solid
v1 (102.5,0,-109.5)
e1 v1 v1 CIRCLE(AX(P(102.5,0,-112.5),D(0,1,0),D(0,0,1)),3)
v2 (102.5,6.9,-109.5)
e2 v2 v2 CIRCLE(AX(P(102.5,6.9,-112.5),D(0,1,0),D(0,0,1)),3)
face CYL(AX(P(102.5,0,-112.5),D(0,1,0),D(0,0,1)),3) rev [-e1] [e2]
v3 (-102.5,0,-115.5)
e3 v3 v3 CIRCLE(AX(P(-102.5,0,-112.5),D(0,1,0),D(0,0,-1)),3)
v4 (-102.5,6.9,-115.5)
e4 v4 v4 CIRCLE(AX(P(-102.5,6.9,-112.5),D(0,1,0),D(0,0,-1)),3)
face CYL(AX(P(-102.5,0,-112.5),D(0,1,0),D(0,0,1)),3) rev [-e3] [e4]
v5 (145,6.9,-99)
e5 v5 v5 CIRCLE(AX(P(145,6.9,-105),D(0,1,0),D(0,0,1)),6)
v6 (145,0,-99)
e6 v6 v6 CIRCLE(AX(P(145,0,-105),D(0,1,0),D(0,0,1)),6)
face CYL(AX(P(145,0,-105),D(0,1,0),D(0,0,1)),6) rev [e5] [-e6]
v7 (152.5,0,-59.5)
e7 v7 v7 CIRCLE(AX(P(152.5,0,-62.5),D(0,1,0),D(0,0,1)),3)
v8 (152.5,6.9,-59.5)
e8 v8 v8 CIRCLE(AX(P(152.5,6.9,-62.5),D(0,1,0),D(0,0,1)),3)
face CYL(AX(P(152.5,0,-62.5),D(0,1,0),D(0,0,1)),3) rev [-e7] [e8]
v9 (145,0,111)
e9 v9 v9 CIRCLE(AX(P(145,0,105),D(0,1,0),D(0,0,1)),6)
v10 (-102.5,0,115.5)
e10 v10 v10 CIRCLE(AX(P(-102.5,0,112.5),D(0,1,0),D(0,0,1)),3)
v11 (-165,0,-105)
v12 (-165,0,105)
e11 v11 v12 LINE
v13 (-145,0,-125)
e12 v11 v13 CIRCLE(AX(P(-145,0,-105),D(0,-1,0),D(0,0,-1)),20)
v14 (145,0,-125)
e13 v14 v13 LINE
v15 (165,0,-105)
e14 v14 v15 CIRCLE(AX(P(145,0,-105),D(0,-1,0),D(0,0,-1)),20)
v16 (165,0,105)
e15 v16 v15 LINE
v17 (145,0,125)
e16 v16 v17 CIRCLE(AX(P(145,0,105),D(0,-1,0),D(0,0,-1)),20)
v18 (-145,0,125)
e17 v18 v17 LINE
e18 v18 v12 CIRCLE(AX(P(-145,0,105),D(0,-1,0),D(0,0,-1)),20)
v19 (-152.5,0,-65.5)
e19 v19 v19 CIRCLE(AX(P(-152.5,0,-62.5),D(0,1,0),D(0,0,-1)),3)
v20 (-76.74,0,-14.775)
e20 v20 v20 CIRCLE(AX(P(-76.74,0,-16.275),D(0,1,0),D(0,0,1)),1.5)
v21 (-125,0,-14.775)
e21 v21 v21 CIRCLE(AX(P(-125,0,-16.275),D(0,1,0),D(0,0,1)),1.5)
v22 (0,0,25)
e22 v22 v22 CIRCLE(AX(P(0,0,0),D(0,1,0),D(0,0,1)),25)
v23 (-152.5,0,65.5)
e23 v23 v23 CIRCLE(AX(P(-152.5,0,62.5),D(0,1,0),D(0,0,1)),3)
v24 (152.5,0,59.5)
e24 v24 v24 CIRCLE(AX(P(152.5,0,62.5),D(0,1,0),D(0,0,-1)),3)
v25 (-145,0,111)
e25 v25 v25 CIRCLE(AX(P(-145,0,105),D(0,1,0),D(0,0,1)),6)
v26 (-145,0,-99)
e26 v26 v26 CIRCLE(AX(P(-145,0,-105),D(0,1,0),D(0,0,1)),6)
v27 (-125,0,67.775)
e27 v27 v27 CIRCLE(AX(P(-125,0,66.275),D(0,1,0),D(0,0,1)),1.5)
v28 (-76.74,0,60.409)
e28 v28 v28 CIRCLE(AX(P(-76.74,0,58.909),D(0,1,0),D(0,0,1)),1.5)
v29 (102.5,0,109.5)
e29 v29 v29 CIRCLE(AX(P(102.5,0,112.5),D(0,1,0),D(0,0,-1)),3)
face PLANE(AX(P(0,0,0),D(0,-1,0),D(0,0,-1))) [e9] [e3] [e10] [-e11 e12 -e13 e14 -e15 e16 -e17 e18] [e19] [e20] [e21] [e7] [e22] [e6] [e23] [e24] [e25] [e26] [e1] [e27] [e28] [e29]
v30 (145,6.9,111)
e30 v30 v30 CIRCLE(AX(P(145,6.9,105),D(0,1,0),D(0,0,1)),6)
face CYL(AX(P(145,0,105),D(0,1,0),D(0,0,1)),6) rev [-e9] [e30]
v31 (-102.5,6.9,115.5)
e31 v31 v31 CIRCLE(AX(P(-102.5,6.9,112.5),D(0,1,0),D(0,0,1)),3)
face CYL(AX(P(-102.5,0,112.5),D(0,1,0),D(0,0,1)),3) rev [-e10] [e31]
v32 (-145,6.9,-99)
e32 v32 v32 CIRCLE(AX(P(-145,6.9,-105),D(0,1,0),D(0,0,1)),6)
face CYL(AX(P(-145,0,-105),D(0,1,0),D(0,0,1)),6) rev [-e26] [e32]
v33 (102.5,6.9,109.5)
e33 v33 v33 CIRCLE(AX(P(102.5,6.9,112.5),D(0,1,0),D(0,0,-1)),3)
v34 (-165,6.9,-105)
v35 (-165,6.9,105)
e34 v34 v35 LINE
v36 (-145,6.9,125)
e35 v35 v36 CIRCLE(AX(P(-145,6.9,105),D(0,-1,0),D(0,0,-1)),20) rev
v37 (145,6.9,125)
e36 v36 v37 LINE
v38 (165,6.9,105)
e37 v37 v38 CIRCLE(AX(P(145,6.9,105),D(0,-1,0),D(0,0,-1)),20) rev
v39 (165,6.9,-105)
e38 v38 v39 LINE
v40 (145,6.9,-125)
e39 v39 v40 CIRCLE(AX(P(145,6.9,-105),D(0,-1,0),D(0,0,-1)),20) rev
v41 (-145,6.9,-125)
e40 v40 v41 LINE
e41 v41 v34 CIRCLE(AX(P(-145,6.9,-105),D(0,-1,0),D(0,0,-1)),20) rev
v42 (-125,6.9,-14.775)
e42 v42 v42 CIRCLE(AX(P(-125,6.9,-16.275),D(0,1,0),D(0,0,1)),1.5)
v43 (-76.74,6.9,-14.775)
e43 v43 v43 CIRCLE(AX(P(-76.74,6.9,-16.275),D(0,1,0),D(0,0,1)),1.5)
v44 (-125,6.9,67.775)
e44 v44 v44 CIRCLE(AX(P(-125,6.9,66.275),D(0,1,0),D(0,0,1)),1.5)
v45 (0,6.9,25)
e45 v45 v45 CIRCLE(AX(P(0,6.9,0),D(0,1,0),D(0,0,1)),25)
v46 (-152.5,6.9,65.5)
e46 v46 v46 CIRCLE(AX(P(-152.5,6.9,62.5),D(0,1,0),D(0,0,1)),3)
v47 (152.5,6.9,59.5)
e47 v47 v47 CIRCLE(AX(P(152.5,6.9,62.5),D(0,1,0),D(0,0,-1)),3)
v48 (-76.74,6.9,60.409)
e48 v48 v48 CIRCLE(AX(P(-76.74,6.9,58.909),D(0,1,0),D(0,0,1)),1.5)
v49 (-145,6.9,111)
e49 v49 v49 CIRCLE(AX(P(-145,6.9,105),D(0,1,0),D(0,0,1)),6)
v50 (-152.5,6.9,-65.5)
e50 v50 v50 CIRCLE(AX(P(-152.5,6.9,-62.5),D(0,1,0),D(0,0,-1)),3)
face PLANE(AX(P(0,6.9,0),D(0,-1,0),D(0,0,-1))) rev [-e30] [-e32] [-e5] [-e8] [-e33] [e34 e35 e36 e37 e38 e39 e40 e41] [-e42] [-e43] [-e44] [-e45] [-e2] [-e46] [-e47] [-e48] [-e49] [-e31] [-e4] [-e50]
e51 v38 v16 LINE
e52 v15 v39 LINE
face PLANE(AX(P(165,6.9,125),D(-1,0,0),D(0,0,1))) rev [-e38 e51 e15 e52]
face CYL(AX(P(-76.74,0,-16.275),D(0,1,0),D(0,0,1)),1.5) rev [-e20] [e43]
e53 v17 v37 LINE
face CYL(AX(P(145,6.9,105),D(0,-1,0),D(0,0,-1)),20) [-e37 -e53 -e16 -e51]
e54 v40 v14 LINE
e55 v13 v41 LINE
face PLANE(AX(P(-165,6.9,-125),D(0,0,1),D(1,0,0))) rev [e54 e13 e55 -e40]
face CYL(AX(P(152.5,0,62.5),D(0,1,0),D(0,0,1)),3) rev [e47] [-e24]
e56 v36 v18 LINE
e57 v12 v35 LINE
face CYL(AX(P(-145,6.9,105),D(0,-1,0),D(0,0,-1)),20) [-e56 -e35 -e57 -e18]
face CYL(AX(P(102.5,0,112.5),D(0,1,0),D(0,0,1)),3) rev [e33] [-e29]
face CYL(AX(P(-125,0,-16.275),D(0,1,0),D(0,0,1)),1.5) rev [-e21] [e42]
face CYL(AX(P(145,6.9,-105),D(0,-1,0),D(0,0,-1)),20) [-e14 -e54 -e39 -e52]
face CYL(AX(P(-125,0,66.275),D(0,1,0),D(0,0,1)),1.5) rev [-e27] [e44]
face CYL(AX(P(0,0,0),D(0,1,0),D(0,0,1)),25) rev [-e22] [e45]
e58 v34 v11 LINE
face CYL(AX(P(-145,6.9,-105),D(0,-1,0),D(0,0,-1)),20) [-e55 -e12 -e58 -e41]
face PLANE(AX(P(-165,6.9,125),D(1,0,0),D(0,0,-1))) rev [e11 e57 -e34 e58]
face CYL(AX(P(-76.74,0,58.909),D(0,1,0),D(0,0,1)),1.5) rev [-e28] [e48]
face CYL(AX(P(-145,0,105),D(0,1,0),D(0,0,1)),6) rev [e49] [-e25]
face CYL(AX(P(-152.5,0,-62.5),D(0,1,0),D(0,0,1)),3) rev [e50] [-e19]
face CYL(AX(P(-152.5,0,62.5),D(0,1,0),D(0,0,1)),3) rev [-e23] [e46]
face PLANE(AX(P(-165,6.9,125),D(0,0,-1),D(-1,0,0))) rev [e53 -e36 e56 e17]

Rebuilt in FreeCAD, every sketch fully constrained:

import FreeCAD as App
import Part
import Sketcher

V = App.Vector
Q = App.Units.Quantity


def edges_at(feature, points):
    """Names of the edges that pass closest to the given points."""
    edges = feature.Shape.Edges
    near = lambda p: min(range(len(edges)), key=lambda i: edges[i].distToShape(Part.Vertex(*p))[0])
    return sorted({f"Edge{near(p) + 1}" for p in points})

doc = App.newDocument("Part")
body = doc.addObject("PartDesign::Body", "Body")

sketch1 = body.newObject("Sketcher::SketchObject", "Sketch")
sketch1.AttachmentSupport = (doc.getObject("XZ_Plane"), [""])
sketch1.MapMode = "FlatFace"
sketch1.addGeometry(Part.LineSegment(V(-165, -125, 0), V(-165, 125, 0)), False)
sketch1.addGeometry(Part.LineSegment(V(-165, 125, 0), V(165, 125, 0)), False)
sketch1.addGeometry(Part.LineSegment(V(165, 125, 0), V(165, -125, 0)), False)
sketch1.addGeometry(Part.LineSegment(V(165, -125, 0), V(-165, -125, 0)), False)
sketch1.addConstraint(Sketcher.Constraint("Coincident", 0, 2, 1, 1))
sketch1.addConstraint(Sketcher.Constraint("Coincident", 1, 2, 2, 1))
sketch1.addConstraint(Sketcher.Constraint("Coincident", 2, 2, 3, 1))
sketch1.addConstraint(Sketcher.Constraint("Coincident", 3, 2, 0, 1))
sketch1.addConstraint(Sketcher.Constraint("Vertical", 0))
sketch1.addConstraint(Sketcher.Constraint("Horizontal", 1))
sketch1.addConstraint(Sketcher.Constraint("Vertical", 2))
sketch1.addConstraint(Sketcher.Constraint("Horizontal", 3))
sketch1.addConstraint(Sketcher.Constraint("Symmetric", 0, 2, 2, 2, -1, 1))
sketch1.addConstraint(Sketcher.Constraint("DistanceX", 1, 1, 1, 2, Q("330 mm")))
sketch1.addConstraint(Sketcher.Constraint("DistanceY", 0, 1, 0, 2, Q("250 mm")))
pad1 = body.newObject("PartDesign::Pad", "Pad")
pad1.Profile = sketch1
pad1.Length = 6.9
pad1.Reversed = True

sketch2 = body.newObject("Sketcher::SketchObject", "Sketch001")
sketch2.AttachmentSupport = (doc.getObject("XZ_Plane"), [""])
sketch2.MapMode = "FlatFace"
sketch2.AttachmentOffset = App.Placement(V(0, 0, -6.9), App.Rotation())
sketch2.addGeometry(Part.Circle(V(-145, -105, 0), V(0, 0, 1), 6), False)
sketch2.addGeometry(Part.Circle(V(145, -105, 0), V(0, 0, 1), 6), False)
sketch2.addGeometry(Part.Circle(V(145, 105, 0), V(0, 0, 1), 6), False)
sketch2.addGeometry(Part.Circle(V(-145, 105, 0), V(0, 0, 1), 6), False)
sketch2.addConstraint(Sketcher.Constraint("Equal", 0, 1))
sketch2.addConstraint(Sketcher.Constraint("Equal", 1, 2))
sketch2.addConstraint(Sketcher.Constraint("Equal", 2, 3))
sketch2.addConstraint(Sketcher.Constraint("Symmetric", 0, 3, 2, 3, -1, 1))
sketch2.addConstraint(Sketcher.Constraint("Symmetric", 1, 3, 3, 3, -1, 1))
sketch2.addConstraint(Sketcher.Constraint("Symmetric", 0, 3, 1, 3, -2))
sketch2.addConstraint(Sketcher.Constraint("Diameter", 0, Q("12 mm")))
sketch2.addConstraint(Sketcher.Constraint("DistanceX", 0, 3, -1, 1, Q("145 mm")))
sketch2.addConstraint(Sketcher.Constraint("DistanceY", 0, 3, -1, 1, Q("105 mm")))
pocket1 = body.newObject("PartDesign::Pocket", "Pocket")
pocket1.Profile = sketch2
pocket1.Type = "ThroughAll"
pocket1.Reversed = True

sketch3 = body.newObject("Sketcher::SketchObject", "Sketch002")
sketch3.AttachmentSupport = (doc.getObject("XZ_Plane"), [""])
sketch3.MapMode = "FlatFace"
sketch3.AttachmentOffset = App.Placement(V(0, 0, -6.9), App.Rotation())
sketch3.addGeometry(Part.Circle(V(0, 0, 0), V(0, 0, 1), 25), False)
sketch3.addConstraint(Sketcher.Constraint("Coincident", 0, 3, -1, 1))
sketch3.addConstraint(Sketcher.Constraint("Diameter", 0, Q("50 mm")))
pocket2 = body.newObject("PartDesign::Pocket", "Pocket001")
pocket2.Profile = sketch3
pocket2.Type = "ThroughAll"
pocket2.Reversed = True

sketch4 = body.newObject("Sketcher::SketchObject", "Sketch003")
sketch4.AttachmentSupport = (doc.getObject("XZ_Plane"), [""])
sketch4.MapMode = "FlatFace"
sketch4.AttachmentOffset = App.Placement(V(0, 0, -6.9), App.Rotation())
sketch4.addGeometry(Part.Circle(V(-152.5, 62.5, 0), V(0, 0, 1), 3), False)
sketch4.addGeometry(Part.Circle(V(-102.5, 112.5, 0), V(0, 0, 1), 3), False)
sketch4.addGeometry(Part.Circle(V(-102.5, -112.5, 0), V(0, 0, 1), 3), False)
sketch4.addGeometry(Part.Circle(V(-152.5, -62.5, 0), V(0, 0, 1), 3), False)
sketch4.addGeometry(Part.Circle(V(152.5, -62.5, 0), V(0, 0, 1), 3), False)
sketch4.addGeometry(Part.Circle(V(102.5, -112.5, 0), V(0, 0, 1), 3), False)
sketch4.addGeometry(Part.Circle(V(102.5, 112.5, 0), V(0, 0, 1), 3), False)
sketch4.addGeometry(Part.Circle(V(152.5, 62.5, 0), V(0, 0, 1), 3), False)
sketch4.addConstraint(Sketcher.Constraint("Equal", 0, 1))
sketch4.addConstraint(Sketcher.Constraint("Equal", 1, 2))
sketch4.addConstraint(Sketcher.Constraint("Equal", 2, 3))
sketch4.addConstraint(Sketcher.Constraint("Equal", 3, 4))
sketch4.addConstraint(Sketcher.Constraint("Equal", 4, 5))
sketch4.addConstraint(Sketcher.Constraint("Equal", 5, 6))
sketch4.addConstraint(Sketcher.Constraint("Equal", 6, 7))
sketch4.addConstraint(Sketcher.Constraint("Symmetric", 0, 3, 4, 3, -1, 1))
sketch4.addConstraint(Sketcher.Constraint("Symmetric", 1, 3, 5, 3, -1, 1))
sketch4.addConstraint(Sketcher.Constraint("Symmetric", 2, 3, 6, 3, -1, 1))
sketch4.addConstraint(Sketcher.Constraint("Symmetric", 3, 3, 7, 3, -1, 1))
sketch4.addConstraint(Sketcher.Constraint("Symmetric", 3, 3, 4, 3, -2))
sketch4.addConstraint(Sketcher.Constraint("Symmetric", 2, 3, 5, 3, -2))
sketch4.addConstraint(Sketcher.Constraint("Diameter", 0, Q("6 mm")))
sketch4.addConstraint(Sketcher.Constraint("DistanceX", 0, 3, 1, 3, Q("50 mm")))
sketch4.addConstraint(Sketcher.Constraint("DistanceY", 0, 3, 1, 3, Q("50 mm")))
sketch4.addConstraint(Sketcher.Constraint("DistanceY", 2, 3, 0, 3, Q("175 mm")))
sketch4.addConstraint(Sketcher.Constraint("DistanceX", 2, 3, 4, 3, Q("255 mm")))
pocket3 = body.newObject("PartDesign::Pocket", "Pocket002")
pocket3.Profile = sketch4
pocket3.Type = "ThroughAll"
pocket3.Reversed = True
doc.recompute()

fillet = body.newObject("PartDesign::Fillet", "Fillet")
fillet.Base = (pocket3, edges_at(pocket3, [
    (-165, 3.45, -125),
    (165, 3.45, -125),
    (165, 3.45, 125),
    (-165, 3.45, 125),
]))
fillet.Radius = 20

sketch5 = body.newObject("Sketcher::SketchObject", "Sketch004")
sketch5.AttachmentSupport = (doc.getObject("XZ_Plane"), [""])
sketch5.MapMode = "FlatFace"
sketch5.AttachmentOffset = App.Placement(V(0, 0, -6.9), App.Rotation())
sketch5.addGeometry(Part.Circle(V(-125, -16.3, 0), V(0, 0, 1), 1.5), False)
sketch5.addGeometry(Part.Circle(V(-76.7, -16.3, 0), V(0, 0, 1), 1.5), False)
sketch5.addGeometry(Part.Circle(V(-125, 66.3, 0), V(0, 0, 1), 1.5), False)
sketch5.addGeometry(Part.Circle(V(-76.7, 58.9, 0), V(0, 0, 1), 1.5), False)
sketch5.addConstraint(Sketcher.Constraint("Equal", 0, 1))
sketch5.addConstraint(Sketcher.Constraint("Equal", 1, 2))
sketch5.addConstraint(Sketcher.Constraint("Equal", 2, 3))
sketch5.addConstraint(Sketcher.Constraint("Horizontal", 0, 3, 1, 3))
sketch5.addConstraint(Sketcher.Constraint("Vertical", 0, 3, 2, 3))
sketch5.addConstraint(Sketcher.Constraint("Vertical", 1, 3, 3, 3))
sketch5.addConstraint(Sketcher.Constraint("Diameter", 0, Q("3 mm")))
sketch5.addConstraint(Sketcher.Constraint("DistanceX", 0, 3, -1, 1, Q("125 mm")))
sketch5.addConstraint(Sketcher.Constraint("DistanceX", 1, 3, -1, 1, Q("76.74 mm")))
sketch5.addConstraint(Sketcher.Constraint("DistanceY", 0, 3, 2, 3, Q("82.55 mm")))
sketch5.addConstraint(Sketcher.Constraint("DistanceY", 0, 3, -1, 1, Q("16.275 mm")))
sketch5.addConstraint(Sketcher.Constraint("DistanceY", -1, 1, 3, 3, Q("58.909 mm")))
pocket4 = body.newObject("PartDesign::Pocket", "Pocket003")
pocket4.Profile = sketch5
pocket4.Type = "ThroughAll"
pocket4.Reversed = True

doc.recompute()
